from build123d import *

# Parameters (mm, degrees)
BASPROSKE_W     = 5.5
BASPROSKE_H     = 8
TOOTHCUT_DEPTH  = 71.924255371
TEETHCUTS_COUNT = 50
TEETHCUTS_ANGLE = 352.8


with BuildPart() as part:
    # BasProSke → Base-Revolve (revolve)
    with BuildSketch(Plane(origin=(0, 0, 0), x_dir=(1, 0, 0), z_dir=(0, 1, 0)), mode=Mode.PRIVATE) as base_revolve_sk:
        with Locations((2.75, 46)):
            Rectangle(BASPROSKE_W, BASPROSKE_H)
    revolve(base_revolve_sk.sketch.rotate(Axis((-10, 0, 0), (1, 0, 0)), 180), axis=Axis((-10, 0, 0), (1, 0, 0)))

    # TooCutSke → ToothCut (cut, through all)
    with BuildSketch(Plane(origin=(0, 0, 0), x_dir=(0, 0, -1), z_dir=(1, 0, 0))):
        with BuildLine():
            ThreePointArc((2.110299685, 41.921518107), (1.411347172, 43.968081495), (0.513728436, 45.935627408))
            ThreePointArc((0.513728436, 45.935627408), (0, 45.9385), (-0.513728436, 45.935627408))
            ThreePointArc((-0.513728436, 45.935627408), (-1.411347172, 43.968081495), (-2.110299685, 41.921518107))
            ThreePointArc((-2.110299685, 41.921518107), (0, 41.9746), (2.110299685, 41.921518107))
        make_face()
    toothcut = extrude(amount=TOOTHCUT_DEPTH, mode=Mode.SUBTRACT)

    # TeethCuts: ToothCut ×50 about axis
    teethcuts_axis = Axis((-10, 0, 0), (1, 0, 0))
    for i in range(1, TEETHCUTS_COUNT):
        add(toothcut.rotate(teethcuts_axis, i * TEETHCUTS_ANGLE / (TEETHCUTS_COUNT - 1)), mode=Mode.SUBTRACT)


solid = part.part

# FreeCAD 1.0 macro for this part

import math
import FreeCAD as App
import Part
import Sketcher

V = App.Vector
Q = App.Units.Quantity


def add_polygon(sketch, points):
    """Adds a closed chain of lines whose ends are joined by coincident constraints."""
    first, n = sketch.GeometryCount, len(points)
    for a, b in zip(points, points[1:] + points[:1]):
        sketch.addGeometry(Part.LineSegment(App.Vector(*a, 0), App.Vector(*b, 0)), False)
    for i in range(n):
        sketch.addConstraint(Sketcher.Constraint("Coincident", first + i, 2, first + (i + 1) % n, 1))

doc = App.newDocument("Part")
body = doc.addObject("PartDesign::Body", "Body")

sketch1 = body.newObject("Sketcher::SketchObject", "Sketch")
sketch1.AttachmentSupport = (doc.getObject("XZ_Plane"), [""])
sketch1.MapMode = "FlatFace"
add_polygon(sketch1, [(0, -50), (0, -42), (6, -42), (6, -50)])
sketch1.addConstraint([
    Sketcher.Constraint("Vertical", 0),
    Sketcher.Constraint("Horizontal", 1),
    Sketcher.Constraint("Vertical", 2),
    Sketcher.Constraint("Horizontal", 3),
    Sketcher.Constraint("PointOnObject", 0, 2, -2),
    Sketcher.Constraint("DistanceY", 0, 1, 0, 2, Q("8 mm")),
    Sketcher.Constraint("DistanceX", 1, 1, 1, 2, Q("5.5 mm")),
    Sketcher.Constraint("DistanceY", 0, 2, -1, 1, Q("42 mm")),
])
revolution = body.newObject("PartDesign::Revolution", "Revolution")
revolution.Profile = sketch1
revolution.ReferenceAxis = (sketch1, ["H_Axis"])
revolution.Angle = 360

sketch2 = body.newObject("Sketcher::SketchObject", "Sketch001")
sketch2.AttachmentSupport = (doc.getObject("YZ_Plane"), [""])
sketch2.MapMode = "FlatFace"
sketch2.addGeometry([
    Part.ArcOfCircle(Part.Circle(V(35.9, 18.9, 0), V(0, 0, 1), 21.9), math.radians(-73.98), math.radians(-62.64)),
    Part.ArcOfCircle(Part.Circle(V(0, 0, 0), V(0, 0, 1), 45.9), math.radians(-0.64), math.radians(0.64)),
    Part.ArcOfCircle(Part.Circle(V(35.9, -18.9, 0), V(0, 0, 1), 21.9), math.radians(62.64), math.radians(73.98)),
    Part.ArcOfCircle(Part.Circle(V(0, 0, 0), V(0, 0, 1), 42), math.radians(-2.88), math.radians(2.88)),
], False)
sketch2.addConstraint([
    Sketcher.Constraint("Coincident", 0, 2, 1, 1),
    Sketcher.Constraint("Coincident", 1, 2, 2, 1),
    Sketcher.Constraint("Coincident", 2, 2, 3, 2),
    Sketcher.Constraint("Coincident", 3, 1, 0, 1),
    Sketcher.Constraint("Coincident", 1, 3, -1, 1),
    Sketcher.Constraint("Coincident", 3, 3, -1, 1),
    Sketcher.Constraint("Equal", 0, 2),
    Sketcher.Constraint("Symmetric", 0, 3, 2, 3, -1),
    Sketcher.Constraint("Radius", 0, Q("21.875 mm")),
    Sketcher.Constraint("Radius", 3, Q("41.9746 mm")),
    Sketcher.Constraint("Radius", 1, Q("45.938504 mm")),
    Sketcher.Constraint("DistanceY", -1, 1, 2, 2, Q("2.1103 mm")),
    Sketcher.Constraint("DistanceX", -1, 1, 0, 3, Q("35.88353 mm")),
])
pocket1 = body.newObject("PartDesign::Pocket", "Pocket")
pocket1.Profile = sketch2
pocket1.Type = "ThroughAll"
pocket1.Reversed = True
doc.recompute()

polarpattern = body.newObject("PartDesign::PolarPattern", "PolarPattern")
polarpattern.Originals = [pocket1]
polarpattern.Axis = (doc.getObject("X_Axis"), [""])
polarpattern.Angle = 360
polarpattern.Occurrences = 50
body.Tip = polarpattern

doc.recompute()
